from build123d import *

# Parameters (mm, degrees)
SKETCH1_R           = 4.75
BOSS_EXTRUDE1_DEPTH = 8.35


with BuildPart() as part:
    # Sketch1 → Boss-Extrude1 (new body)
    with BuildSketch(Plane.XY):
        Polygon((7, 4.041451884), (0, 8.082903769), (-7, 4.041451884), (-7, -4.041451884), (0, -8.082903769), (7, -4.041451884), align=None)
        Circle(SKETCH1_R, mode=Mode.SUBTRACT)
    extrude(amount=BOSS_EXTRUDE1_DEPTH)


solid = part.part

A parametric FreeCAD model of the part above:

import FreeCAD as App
import Part
import Sketcher
Q = App.Units.Quantity

doc = App.newDocument("Part")
body = doc.addObject("PartDesign::Body", "Body")

sketch1 = body.newObject("Sketcher::SketchObject", "Sketch")
sketch1.AttachmentSupport = (doc.getObject("XY_Plane"), [""])
sketch1.MapMode = "FlatFace"
sketch1.addGeometry([
    Part.LineSegment(App.Vector(7, 4.041452, 0), App.Vector(0, 8.082904, 0)),
    Part.LineSegment(App.Vector(0, 8.082904, 0), App.Vector(-7, 4.041452, 0)),
    Part.LineSegment(App.Vector(-7, 4.041452, 0), App.Vector(-7, -4.041452, 0)),
    Part.LineSegment(App.Vector(-7, -4.041452, 0), App.Vector(0, -8.082904, 0)),
    Part.LineSegment(App.Vector(0, -8.082904, 0), App.Vector(7, -4.041452, 0)),
    Part.LineSegment(App.Vector(7, -4.041452, 0), App.Vector(7, 4.041452, 0)),
    Part.Circle(App.Vector(0, 0, 0), App.Vector(0, 0, 1), 4.75),
], False)
sketch1.addConstraint([
    Sketcher.Constraint("Coincident", 0, 2, 1, 1),
    Sketcher.Constraint("Coincident", 1, 2, 2, 1),
    Sketcher.Constraint("Coincident", 2, 2, 3, 1),
    Sketcher.Constraint("Coincident", 3, 2, 4, 1),
    Sketcher.Constraint("Coincident", 4, 2, 5, 1),
    Sketcher.Constraint("Coincident", 5, 2, 0, 1),
    Sketcher.Constraint("Vertical", 2),
    Sketcher.Constraint("Vertical", 5),
    Sketcher.Constraint("Coincident", 6, 3, -1, 1),
    Sketcher.Constraint("Symmetric", 0, 2, 3, 2, -1, 1),
    Sketcher.Constraint("Symmetric", 1, 2, 4, 2, -1, 1),
    Sketcher.Constraint("PointOnObject", 0, 2, -2),
    Sketcher.Constraint("Parallel", 0, 3),
    Sketcher.Constraint("Horizontal", 2, 2, 4, 2),
    Sketcher.Constraint("Diameter", 6, Q("9.5 mm")),
    Sketcher.Constraint("Angle", 0, Q("150 deg")),
    Sketcher.Constraint("DistanceX", 1, 2, -1, 1, Q("7 mm")),
    Sketcher.Constraint("DistanceY", 2, 2, 2, 1, Q("8.082904 mm")),
])
pad1 = body.newObject("PartDesign::Pad", "Pad")
pad1.Profile = sketch1
pad1.Length = 8.35

doc.recompute()
